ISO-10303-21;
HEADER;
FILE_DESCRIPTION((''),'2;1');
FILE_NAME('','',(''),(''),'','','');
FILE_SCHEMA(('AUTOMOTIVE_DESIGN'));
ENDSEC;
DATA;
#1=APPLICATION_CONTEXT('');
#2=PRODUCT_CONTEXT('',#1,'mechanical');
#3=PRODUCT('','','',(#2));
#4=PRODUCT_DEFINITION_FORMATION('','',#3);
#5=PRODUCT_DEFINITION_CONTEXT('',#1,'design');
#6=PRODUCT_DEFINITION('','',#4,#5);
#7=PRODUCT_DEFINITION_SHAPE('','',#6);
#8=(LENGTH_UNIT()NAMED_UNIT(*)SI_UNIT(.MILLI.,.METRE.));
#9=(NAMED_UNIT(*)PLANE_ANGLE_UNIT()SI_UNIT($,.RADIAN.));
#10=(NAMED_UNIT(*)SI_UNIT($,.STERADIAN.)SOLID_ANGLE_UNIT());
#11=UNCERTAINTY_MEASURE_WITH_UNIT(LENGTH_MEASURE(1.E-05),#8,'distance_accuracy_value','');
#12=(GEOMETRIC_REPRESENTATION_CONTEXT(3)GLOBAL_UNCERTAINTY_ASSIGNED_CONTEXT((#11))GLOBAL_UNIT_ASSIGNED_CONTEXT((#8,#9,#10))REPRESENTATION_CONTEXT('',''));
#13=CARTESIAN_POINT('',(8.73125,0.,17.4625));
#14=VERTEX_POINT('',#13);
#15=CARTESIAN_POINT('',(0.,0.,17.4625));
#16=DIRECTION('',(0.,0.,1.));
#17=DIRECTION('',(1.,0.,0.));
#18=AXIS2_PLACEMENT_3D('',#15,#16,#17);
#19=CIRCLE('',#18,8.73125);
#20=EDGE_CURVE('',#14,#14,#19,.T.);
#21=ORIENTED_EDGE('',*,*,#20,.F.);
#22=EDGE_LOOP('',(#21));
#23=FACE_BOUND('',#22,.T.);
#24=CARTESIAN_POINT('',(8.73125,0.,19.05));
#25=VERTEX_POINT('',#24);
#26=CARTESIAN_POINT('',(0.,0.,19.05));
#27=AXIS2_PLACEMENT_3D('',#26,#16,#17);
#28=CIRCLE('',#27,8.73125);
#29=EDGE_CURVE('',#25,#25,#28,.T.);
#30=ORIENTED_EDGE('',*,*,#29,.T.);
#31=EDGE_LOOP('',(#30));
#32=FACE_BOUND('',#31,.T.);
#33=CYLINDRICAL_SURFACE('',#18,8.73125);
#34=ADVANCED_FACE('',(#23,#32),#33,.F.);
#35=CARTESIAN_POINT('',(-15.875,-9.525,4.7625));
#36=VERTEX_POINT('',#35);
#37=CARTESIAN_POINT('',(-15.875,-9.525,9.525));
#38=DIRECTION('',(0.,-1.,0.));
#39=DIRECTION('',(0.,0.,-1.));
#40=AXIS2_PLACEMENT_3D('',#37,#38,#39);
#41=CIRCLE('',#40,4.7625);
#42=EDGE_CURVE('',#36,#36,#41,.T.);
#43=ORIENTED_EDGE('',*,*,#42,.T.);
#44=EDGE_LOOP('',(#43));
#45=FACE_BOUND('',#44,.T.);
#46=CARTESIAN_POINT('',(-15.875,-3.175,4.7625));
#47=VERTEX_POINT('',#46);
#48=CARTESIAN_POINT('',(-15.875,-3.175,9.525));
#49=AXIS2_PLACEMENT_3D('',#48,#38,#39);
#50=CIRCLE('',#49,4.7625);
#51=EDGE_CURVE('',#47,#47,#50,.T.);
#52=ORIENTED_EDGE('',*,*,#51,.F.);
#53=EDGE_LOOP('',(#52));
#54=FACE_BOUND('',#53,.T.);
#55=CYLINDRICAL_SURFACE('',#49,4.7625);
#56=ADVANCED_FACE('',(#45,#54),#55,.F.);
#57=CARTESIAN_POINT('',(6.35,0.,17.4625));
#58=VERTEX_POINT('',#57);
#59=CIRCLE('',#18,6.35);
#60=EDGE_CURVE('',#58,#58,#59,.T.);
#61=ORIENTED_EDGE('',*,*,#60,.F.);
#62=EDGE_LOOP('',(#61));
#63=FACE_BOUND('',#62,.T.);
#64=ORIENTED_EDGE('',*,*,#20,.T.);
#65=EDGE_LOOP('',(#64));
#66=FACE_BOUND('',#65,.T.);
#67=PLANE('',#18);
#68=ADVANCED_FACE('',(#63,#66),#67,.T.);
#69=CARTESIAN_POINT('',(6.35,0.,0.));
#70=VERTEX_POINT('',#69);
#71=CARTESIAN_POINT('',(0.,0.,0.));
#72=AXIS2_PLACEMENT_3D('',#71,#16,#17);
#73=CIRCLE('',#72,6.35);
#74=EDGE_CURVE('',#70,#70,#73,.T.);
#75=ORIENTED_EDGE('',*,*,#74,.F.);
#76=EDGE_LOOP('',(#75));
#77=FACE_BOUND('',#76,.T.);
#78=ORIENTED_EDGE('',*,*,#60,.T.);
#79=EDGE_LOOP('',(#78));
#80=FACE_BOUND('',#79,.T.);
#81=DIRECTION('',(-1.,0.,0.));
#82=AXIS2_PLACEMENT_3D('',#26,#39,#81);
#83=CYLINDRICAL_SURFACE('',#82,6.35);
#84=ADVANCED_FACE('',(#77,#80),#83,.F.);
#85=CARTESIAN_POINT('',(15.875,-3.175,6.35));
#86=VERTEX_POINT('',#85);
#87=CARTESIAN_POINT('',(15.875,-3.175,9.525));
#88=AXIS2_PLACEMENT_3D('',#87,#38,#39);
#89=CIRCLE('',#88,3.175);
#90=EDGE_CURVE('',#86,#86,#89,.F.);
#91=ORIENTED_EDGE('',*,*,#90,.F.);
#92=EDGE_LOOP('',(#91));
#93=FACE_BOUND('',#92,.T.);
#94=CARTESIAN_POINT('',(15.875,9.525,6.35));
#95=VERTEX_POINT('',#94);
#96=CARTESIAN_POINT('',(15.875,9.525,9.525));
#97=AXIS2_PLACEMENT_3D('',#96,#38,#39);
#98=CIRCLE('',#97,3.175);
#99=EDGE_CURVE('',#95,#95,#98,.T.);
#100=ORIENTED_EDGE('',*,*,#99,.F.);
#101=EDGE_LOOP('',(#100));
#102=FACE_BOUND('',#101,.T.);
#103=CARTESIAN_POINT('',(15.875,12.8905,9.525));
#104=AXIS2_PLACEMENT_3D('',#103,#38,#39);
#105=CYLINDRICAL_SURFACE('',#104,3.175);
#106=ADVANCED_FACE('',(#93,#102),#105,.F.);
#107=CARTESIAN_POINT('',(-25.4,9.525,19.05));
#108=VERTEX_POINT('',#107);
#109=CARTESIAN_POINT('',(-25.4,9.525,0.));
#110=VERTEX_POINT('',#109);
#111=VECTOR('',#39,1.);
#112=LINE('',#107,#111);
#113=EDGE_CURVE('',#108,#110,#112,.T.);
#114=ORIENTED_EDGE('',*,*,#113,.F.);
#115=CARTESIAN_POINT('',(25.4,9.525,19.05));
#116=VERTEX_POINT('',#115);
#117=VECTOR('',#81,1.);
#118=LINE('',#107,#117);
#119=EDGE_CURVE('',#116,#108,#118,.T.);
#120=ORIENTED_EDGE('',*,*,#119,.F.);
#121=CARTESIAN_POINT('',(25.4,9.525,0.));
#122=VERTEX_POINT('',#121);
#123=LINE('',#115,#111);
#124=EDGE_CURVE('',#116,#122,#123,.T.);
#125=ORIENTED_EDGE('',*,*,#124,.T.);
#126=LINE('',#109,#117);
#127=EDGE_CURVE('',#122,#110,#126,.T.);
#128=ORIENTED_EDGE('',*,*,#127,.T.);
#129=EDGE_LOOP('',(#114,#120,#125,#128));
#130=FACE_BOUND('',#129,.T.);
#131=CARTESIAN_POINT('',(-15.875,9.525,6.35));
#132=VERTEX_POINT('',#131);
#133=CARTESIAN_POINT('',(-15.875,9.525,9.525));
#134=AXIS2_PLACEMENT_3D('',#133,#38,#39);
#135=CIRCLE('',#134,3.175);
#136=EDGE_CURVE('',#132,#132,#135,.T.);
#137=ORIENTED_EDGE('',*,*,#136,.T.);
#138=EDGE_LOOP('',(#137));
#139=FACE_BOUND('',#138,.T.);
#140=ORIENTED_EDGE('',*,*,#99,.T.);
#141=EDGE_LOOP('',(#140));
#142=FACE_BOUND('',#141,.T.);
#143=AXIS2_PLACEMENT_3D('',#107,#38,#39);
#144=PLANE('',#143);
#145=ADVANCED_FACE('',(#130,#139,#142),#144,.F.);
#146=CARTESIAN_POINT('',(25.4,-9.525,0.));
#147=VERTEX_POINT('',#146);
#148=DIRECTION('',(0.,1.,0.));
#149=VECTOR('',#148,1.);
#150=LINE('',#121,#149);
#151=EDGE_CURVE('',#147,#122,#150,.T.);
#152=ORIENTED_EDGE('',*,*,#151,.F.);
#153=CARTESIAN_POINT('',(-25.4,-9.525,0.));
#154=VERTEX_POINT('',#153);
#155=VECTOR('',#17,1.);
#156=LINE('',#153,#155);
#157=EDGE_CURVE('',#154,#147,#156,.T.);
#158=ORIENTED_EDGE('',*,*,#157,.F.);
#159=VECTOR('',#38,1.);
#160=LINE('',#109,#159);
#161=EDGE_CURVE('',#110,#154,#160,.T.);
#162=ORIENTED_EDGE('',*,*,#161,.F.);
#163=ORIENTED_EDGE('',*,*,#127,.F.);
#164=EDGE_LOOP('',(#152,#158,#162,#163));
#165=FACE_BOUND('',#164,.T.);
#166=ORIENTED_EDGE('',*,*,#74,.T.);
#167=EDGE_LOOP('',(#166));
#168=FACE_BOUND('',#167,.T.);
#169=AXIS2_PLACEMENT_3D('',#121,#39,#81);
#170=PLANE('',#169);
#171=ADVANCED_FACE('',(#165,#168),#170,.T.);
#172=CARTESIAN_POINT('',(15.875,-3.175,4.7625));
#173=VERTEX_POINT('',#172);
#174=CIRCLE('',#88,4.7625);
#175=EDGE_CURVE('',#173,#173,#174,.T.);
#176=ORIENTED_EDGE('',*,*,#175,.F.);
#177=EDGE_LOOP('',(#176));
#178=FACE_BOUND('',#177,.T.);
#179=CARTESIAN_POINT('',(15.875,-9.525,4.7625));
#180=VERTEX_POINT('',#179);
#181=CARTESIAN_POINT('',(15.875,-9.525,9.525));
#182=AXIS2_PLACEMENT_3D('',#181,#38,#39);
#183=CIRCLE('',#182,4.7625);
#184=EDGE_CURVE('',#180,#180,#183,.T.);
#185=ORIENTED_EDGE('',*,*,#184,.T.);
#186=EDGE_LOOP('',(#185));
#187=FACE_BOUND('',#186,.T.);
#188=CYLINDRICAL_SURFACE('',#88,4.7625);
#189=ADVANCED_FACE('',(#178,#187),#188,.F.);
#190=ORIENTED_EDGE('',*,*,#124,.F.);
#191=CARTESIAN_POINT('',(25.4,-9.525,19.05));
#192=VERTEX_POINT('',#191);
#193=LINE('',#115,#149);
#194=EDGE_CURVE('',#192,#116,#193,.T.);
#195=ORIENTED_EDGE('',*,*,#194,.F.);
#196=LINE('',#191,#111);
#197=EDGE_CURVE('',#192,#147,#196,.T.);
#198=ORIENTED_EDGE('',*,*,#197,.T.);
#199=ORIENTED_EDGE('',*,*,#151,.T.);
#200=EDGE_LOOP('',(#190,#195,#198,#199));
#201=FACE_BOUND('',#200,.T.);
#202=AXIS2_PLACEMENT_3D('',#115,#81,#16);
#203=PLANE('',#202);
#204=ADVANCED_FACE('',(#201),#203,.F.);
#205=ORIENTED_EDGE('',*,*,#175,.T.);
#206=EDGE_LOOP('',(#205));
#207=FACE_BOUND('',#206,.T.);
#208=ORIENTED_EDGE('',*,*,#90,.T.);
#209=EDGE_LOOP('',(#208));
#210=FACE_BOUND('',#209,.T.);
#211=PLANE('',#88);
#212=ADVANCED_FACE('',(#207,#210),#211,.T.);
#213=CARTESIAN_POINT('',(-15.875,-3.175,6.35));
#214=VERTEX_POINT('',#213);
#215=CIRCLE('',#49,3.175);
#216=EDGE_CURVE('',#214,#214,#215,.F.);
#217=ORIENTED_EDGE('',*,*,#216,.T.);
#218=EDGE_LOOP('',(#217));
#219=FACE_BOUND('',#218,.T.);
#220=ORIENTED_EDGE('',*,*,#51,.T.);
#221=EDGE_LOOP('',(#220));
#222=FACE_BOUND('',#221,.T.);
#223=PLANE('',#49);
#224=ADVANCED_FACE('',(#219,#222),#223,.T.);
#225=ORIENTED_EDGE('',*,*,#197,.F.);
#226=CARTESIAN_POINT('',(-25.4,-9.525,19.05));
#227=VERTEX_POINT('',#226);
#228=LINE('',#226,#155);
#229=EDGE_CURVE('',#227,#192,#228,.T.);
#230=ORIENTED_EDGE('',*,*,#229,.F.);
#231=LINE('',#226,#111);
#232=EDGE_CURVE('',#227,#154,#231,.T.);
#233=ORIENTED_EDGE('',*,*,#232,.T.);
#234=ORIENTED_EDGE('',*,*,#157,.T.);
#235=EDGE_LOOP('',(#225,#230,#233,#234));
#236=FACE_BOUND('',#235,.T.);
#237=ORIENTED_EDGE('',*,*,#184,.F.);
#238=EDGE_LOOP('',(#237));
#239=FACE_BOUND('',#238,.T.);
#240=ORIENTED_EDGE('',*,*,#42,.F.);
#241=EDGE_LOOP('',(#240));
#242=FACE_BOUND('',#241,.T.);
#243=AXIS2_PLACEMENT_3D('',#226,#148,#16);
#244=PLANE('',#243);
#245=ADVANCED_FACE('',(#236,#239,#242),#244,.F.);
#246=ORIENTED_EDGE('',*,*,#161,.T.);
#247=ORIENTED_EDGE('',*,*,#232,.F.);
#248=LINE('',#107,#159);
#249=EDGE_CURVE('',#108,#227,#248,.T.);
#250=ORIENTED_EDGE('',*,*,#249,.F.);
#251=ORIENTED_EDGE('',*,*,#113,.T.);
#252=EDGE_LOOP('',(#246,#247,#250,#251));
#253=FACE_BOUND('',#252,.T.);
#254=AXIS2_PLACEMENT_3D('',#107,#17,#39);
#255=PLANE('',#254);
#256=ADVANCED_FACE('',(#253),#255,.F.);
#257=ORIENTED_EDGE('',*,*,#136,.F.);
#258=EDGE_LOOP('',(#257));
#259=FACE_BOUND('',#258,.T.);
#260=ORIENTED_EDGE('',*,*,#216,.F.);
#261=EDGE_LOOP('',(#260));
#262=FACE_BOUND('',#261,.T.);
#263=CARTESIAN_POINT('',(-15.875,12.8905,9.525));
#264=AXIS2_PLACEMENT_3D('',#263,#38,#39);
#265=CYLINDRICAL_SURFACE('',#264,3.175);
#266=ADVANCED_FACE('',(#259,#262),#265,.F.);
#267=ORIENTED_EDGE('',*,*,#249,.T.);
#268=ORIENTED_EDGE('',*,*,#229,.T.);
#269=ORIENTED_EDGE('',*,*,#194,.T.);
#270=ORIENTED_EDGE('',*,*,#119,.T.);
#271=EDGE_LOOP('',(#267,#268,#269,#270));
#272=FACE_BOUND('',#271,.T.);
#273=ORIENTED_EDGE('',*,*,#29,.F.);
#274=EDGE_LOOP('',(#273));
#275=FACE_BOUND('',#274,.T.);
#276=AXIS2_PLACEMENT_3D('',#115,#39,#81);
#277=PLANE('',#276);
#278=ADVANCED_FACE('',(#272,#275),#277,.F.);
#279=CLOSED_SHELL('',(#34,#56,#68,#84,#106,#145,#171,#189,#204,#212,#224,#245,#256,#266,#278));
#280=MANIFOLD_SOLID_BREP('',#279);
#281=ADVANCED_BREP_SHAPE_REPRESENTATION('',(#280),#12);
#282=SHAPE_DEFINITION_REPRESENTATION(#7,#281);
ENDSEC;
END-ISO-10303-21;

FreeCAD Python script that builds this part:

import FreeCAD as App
import Part
import Sketcher
Q = App.Units.Quantity

doc = App.newDocument("Part")
params = doc.addObject("Spreadsheet::Sheet", "Params")
for row, (alias, value) in enumerate([
    ("sketch1_diameter", "0.5 in"),
    ("sketch1_width", "2 in"),
    ("sketch1_height", "0.75 in"),
    ("pad1_length", "0.75 in"),
    ("sketch2_diameter", "0.6875 in"),
    ("pocket1_length", "0.0625 in"),
    ("sketch3_diameter", "0.25 in"),
    ("pocket2_length", "0.8825 in"),
    ("sketch4_diameter", "0.375 in"),
    ("pocket3_length", "0.25 in"),
], start=1):
    params.set(f"A{row}", alias)
    params.set(f"B{row}", "=" + value)
    params.setAlias(f"B{row}", alias)

body = doc.addObject("PartDesign::Body", "Body")

# Sketch on XY plane
sketch1 = body.newObject("Sketcher::SketchObject", "Sketch")
sketch1.AttachmentSupport = (doc.getObject("XY_Plane"), [""])
sketch1.MapMode = "FlatFace"
sketch1.addGeometry([
    Part.LineSegment(App.Vector(-25, 10, 0), App.Vector(-25, -10, 0)),  # 0
    Part.LineSegment(App.Vector(-25, -10, 0), App.Vector(25, -10, 0)),  # 1
    Part.LineSegment(App.Vector(25, -10, 0), App.Vector(25, 10, 0)),  # 2
    Part.LineSegment(App.Vector(25, 10, 0), App.Vector(-25, 10, 0)),  # 3
    Part.Circle(App.Vector(0, 0, 0), App.Vector(0, 0, 1), 6),  # 4
], False)
sketch1.addConstraint([
    Sketcher.Constraint("Coincident", 0, 2, 1, 1),
    Sketcher.Constraint("Coincident", 1, 2, 2, 1),
    Sketcher.Constraint("Coincident", 2, 2, 3, 1),
    Sketcher.Constraint("Coincident", 3, 2, 0, 1),
    Sketcher.Constraint("Vertical", 0),
    Sketcher.Constraint("Horizontal", 1),
    Sketcher.Constraint("Vertical", 2),
    Sketcher.Constraint("Horizontal", 3),
    Sketcher.Constraint("Coincident", 4, 3, -1, 1),
    Sketcher.Constraint("Symmetric", 0, 2, 2, 2, -1, 1),
    Sketcher.Constraint("Diameter", 4, Q("0.5 in")),
    Sketcher.Constraint("DistanceX", 1, 1, 1, 2, Q("2 in")),
    Sketcher.Constraint("DistanceY", 0, 2, 0, 1, Q("0.75 in")),
])
sketch1.setExpression("Constraints[10]", "Params.sketch1_diameter")
sketch1.setExpression("Constraints[11]", "Params.sketch1_width")
sketch1.setExpression("Constraints[12]", "Params.sketch1_height")
pad1 = body.newObject("PartDesign::Pad", "Pad")
pad1.Profile = sketch1
pad1.setExpression("Length", "Params.pad1_length")

# Sketch on XY plane
sketch2 = body.newObject("Sketcher::SketchObject", "Sketch001")
sketch2.AttachmentSupport = (doc.getObject("XY_Plane"), [""])
sketch2.MapMode = "FlatFace"
sketch2.AttachmentOffset = App.Placement(App.Vector(0, 0, 0.75 * 25.4), App.Rotation())
sketch2.addGeometry(Part.Circle(App.Vector(0, 0, 0), App.Vector(0, 0, 1), 9), False)
sketch2.addConstraint([
    Sketcher.Constraint("Coincident", 0, 3, -1, 1),
    Sketcher.Constraint("Diameter", 0, Q("0.6875 in")),
])
sketch2.setExpression("Constraints[1]", "Params.sketch2_diameter")
pocket1 = body.newObject("PartDesign::Pocket", "Pocket")
pocket1.Profile = sketch2
pocket1.setExpression("Length", "Params.pocket1_length")

# Sketch on XZ plane
sketch3 = body.newObject("Sketcher::SketchObject", "Sketch002")
sketch3.AttachmentSupport = (doc.getObject("XZ_Plane"), [""])
sketch3.MapMode = "FlatFace"
sketch3.AttachmentOffset = App.Placement(App.Vector(0, 0, 0.375 * 25.4), App.Rotation())
sketch3.addGeometry([
    Part.Circle(App.Vector(-15.9, 9.5, 0), App.Vector(0, 0, 1), 3.2),
    Part.Circle(App.Vector(15.9, 9.5, 0), App.Vector(0, 0, 1), 3.2),
], False)
sketch3.addConstraint([
    Sketcher.Constraint("Equal", 0, 1),
    Sketcher.Constraint("Symmetric", 0, 3, 1, 3, -2),
    Sketcher.Constraint("Diameter", 0, Q("0.25 in")),
    Sketcher.Constraint("DistanceX", 0, 3, 1, 3, Q("1.25 in")),
    Sketcher.Constraint("DistanceY", -1, 1, 0, 3, Q("0.375 in")),
])
sketch3.setExpression("Constraints[2]", "Params.sketch3_diameter")
pocket2 = body.newObject("PartDesign::Pocket", "Pocket001")
pocket2.Profile = sketch3
pocket2.setExpression("Length", "Params.pocket2_length")

# Sketch on XZ plane
sketch4 = body.newObject("Sketcher::SketchObject", "Sketch003")
sketch4.AttachmentSupport = (doc.getObject("XZ_Plane"), [""])
sketch4.MapMode = "FlatFace"
sketch4.AttachmentOffset = App.Placement(App.Vector(0, 0, 0.375 * 25.4), App.Rotation())
sketch4.addGeometry([
    Part.Circle(App.Vector(-15.9, 9.5, 0), App.Vector(0, 0, 1), 4.8),
    Part.Circle(App.Vector(15.9, 9.5, 0), App.Vector(0, 0, 1), 4.8),
], False)
sketch4.addConstraint([
    Sketcher.Constraint("Equal", 0, 1),
    Sketcher.Constraint("Symmetric", 0, 3, 1, 3, -2),
    Sketcher.Constraint("Diameter", 0, Q("0.375 in")),
    Sketcher.Constraint("DistanceX", 0, 3, 1, 3, Q("1.25 in")),
    Sketcher.Constraint("DistanceY", -1, 1, 0, 3, Q("0.375 in")),
])
sketch4.setExpression("Constraints[2]", "Params.sketch4_diameter")
pocket3 = body.newObject("PartDesign::Pocket", "Pocket002")
pocket3.Profile = sketch4
pocket3.setExpression("Length", "Params.pocket3_length")

doc.recompute()
